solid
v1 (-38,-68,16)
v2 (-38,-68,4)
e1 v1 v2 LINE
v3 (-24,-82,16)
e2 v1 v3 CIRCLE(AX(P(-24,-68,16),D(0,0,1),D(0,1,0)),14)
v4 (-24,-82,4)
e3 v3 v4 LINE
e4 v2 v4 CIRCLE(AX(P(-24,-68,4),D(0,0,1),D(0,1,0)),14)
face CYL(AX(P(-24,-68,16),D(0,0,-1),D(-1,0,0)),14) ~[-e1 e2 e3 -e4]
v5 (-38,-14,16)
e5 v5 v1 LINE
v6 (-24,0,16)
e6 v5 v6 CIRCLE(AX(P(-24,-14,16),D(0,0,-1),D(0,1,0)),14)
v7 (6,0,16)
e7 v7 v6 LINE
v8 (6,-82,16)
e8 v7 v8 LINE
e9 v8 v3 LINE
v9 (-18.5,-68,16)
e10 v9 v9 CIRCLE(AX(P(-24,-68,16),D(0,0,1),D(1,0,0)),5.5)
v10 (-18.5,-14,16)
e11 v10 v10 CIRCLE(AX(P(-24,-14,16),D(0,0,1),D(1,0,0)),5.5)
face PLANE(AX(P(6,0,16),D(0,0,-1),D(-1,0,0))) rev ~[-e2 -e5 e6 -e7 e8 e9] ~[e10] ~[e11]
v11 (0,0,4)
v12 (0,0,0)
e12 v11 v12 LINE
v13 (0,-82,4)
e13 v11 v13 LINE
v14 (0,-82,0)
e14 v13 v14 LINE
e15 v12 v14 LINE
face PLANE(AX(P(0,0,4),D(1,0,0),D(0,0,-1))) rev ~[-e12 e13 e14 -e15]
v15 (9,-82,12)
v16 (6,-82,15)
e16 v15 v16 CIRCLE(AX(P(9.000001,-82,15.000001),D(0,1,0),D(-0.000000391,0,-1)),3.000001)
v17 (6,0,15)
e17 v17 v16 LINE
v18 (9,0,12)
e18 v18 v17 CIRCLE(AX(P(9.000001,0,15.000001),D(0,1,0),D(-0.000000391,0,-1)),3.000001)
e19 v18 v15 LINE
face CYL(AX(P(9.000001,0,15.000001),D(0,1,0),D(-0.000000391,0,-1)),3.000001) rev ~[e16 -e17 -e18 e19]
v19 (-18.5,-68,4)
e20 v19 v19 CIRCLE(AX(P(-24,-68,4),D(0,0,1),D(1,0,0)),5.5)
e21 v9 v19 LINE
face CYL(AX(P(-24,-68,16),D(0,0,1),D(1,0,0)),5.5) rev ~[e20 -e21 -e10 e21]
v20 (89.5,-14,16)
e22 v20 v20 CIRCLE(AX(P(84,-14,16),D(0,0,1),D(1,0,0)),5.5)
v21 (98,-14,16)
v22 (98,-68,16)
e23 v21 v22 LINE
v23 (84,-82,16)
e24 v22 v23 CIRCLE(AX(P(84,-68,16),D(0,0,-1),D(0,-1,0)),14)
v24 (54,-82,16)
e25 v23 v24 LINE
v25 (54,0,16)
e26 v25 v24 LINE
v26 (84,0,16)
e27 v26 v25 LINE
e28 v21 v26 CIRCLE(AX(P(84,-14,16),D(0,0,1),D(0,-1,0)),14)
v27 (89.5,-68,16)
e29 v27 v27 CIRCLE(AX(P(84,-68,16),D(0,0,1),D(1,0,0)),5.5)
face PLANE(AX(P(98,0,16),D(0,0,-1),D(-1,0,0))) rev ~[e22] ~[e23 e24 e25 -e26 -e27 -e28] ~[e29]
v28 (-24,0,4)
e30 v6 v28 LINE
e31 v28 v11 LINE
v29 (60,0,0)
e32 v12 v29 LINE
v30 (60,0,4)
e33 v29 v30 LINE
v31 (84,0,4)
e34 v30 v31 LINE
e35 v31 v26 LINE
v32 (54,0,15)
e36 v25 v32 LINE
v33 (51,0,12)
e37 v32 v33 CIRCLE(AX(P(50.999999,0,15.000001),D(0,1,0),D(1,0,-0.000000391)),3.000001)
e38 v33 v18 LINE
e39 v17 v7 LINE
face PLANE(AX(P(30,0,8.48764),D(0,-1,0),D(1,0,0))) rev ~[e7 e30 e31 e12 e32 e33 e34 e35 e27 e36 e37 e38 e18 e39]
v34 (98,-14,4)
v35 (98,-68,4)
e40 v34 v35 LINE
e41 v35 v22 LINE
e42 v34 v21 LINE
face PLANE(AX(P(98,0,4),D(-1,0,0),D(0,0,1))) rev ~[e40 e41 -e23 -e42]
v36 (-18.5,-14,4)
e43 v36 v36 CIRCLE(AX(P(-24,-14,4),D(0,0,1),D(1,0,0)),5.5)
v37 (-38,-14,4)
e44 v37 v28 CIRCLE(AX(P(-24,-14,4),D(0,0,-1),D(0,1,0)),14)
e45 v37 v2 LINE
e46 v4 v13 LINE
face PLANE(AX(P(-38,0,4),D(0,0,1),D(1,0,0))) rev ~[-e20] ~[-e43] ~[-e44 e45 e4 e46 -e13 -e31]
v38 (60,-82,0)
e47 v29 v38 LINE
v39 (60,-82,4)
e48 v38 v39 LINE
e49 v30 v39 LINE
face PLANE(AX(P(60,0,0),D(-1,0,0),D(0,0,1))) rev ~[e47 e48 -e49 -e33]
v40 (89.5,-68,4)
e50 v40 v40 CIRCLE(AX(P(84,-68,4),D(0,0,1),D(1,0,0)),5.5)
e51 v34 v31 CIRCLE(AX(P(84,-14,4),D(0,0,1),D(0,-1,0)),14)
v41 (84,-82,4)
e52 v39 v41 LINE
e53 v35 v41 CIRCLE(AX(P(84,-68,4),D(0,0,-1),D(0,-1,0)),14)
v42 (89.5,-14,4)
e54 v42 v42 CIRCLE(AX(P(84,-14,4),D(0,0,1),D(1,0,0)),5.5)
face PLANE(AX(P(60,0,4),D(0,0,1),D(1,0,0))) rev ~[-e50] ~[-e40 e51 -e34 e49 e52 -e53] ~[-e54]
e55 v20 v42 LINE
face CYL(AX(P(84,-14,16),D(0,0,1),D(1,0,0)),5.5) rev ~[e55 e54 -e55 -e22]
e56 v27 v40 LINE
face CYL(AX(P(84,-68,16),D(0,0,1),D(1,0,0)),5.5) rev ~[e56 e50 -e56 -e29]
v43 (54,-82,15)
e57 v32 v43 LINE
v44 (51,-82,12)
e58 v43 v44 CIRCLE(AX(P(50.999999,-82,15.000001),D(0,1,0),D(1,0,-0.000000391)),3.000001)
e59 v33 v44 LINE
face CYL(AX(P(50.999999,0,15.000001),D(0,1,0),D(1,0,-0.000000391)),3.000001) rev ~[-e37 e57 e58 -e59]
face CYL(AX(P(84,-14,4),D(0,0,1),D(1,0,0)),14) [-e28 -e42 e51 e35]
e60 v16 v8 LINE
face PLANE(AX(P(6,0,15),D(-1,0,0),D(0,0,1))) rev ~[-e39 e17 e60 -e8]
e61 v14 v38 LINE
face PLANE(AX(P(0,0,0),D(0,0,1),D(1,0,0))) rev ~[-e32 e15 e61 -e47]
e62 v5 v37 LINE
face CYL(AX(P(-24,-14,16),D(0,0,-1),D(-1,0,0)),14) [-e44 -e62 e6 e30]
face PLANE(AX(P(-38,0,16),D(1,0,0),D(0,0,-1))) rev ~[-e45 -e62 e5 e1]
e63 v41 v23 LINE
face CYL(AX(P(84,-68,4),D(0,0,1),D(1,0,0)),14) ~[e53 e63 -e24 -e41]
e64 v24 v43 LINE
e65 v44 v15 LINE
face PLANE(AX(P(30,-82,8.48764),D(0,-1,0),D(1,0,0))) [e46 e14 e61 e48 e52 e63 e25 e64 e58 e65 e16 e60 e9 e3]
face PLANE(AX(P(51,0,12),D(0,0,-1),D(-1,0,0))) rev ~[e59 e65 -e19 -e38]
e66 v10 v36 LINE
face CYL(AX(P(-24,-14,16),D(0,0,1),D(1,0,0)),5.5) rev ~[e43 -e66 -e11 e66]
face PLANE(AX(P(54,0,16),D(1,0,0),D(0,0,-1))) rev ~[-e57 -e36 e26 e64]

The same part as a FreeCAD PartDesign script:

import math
import FreeCAD as App
import Part
import Sketcher


def edges_at(feature, points):
    """Names of the edges that pass closest to the given points."""
    edges = feature.Shape.Edges
    near = lambda p: min(range(len(edges)), key=lambda i: edges[i].distToShape(Part.Vertex(*p))[0])
    return sorted({f"Edge{near(p) + 1}" for p in points})

doc = App.newDocument("Part")
body = doc.addObject("PartDesign::Body", "Body")

# Sketch on XZ plane
sketch1 = body.newObject("Sketcher::SketchObject", "Sketch")
sketch1.AttachmentSupport = (doc.getObject("XZ_Plane"), [""])
sketch1.MapMode = "FlatFace"
sketch1.addGeometry([
    Part.LineSegment(App.Vector(0, 4, 0), App.Vector(0, 0, 0)),  # 0
    Part.LineSegment(App.Vector(0, 0, 0), App.Vector(60, 0, 0)),  # 1
    Part.LineSegment(App.Vector(60, 0, 0), App.Vector(60, 4, 0)),  # 2
    Part.LineSegment(App.Vector(60, 4, 0), App.Vector(98, 4, 0)),  # 3
    Part.LineSegment(App.Vector(98, 4, 0), App.Vector(98, 16, 0)),  # 4
    Part.LineSegment(App.Vector(98, 16, 0), App.Vector(54, 16, 0)),  # 5
    Part.LineSegment(App.Vector(54, 16, 0), App.Vector(54, 15, 0)),  # 6
    Part.ArcOfCircle(Part.Circle(App.Vector(51, 15, 0), App.Vector(0, 0, 1), 3), math.radians(-90), math.radians(0)),  # 7
    Part.LineSegment(App.Vector(51, 12, 0), App.Vector(9, 12, 0)),  # 8
    Part.ArcOfCircle(Part.Circle(App.Vector(9, 15, 0), App.Vector(0, 0, 1), 3), math.radians(-180), math.radians(-90)),  # 9
    Part.LineSegment(App.Vector(6, 15, 0), App.Vector(6, 16, 0)),  # 10
    Part.LineSegment(App.Vector(6, 16, 0), App.Vector(-38, 16, 0)),  # 11
    Part.LineSegment(App.Vector(-38, 16, 0), App.Vector(-38, 4, 0)),  # 12
    Part.LineSegment(App.Vector(-38, 4, 0), App.Vector(0, 4, 0)),  # 13
], False)
sketch1.addConstraint([
    Sketcher.Constraint("Coincident", 0, 2, 1, 1),
    Sketcher.Constraint("Coincident", 1, 2, 2, 1),
    Sketcher.Constraint("Coincident", 2, 2, 3, 1),
    Sketcher.Constraint("Coincident", 3, 2, 4, 1),
    Sketcher.Constraint("Coincident", 4, 2, 5, 1),
    Sketcher.Constraint("Coincident", 5, 2, 6, 1),
    Sketcher.Constraint("Tangent", 6, 2, 7, 2),
    Sketcher.Constraint("Tangent", 7, 1, 8, 1),
    Sketcher.Constraint("Tangent", 8, 2, 9, 2),
    Sketcher.Constraint("Tangent", 9, 1, 10, 1),
    Sketcher.Constraint("Coincident", 10, 2, 11, 1),
    Sketcher.Constraint("Coincident", 11, 2, 12, 1),
    Sketcher.Constraint("Coincident", 12, 2, 13, 1),
    Sketcher.Constraint("Coincident", 13, 2, 0, 1),
    Sketcher.Constraint("Vertical", 0),
    Sketcher.Constraint("Horizontal", 1),
    Sketcher.Constraint("Vertical", 2),
    Sketcher.Constraint("Horizontal", 3),
    Sketcher.Constraint("Vertical", 4),
    Sketcher.Constraint("Horizontal", 5),
    Sketcher.Constraint("Vertical", 6),
    Sketcher.Constraint("Horizontal", 8),
    Sketcher.Constraint("Vertical", 10),
    Sketcher.Constraint("Horizontal", 11),
    Sketcher.Constraint("Vertical", 12),
    Sketcher.Constraint("Horizontal", 13),
    Sketcher.Constraint("Coincident", 0, 2, -1, 1),
    Sketcher.Constraint("Equal", 7, 9),
    Sketcher.Constraint("Horizontal", 5, 2, 10, 2),
    Sketcher.Constraint("Horizontal", 3, 2, 12, 2),
    Sketcher.Constraint("Equal", 5, 11),
    Sketcher.Constraint("Equal", 3, 13),
    Sketcher.Constraint("Radius", 7, 3.000001),
    Sketcher.Constraint("DistanceX", 1, 1, 1, 2, 60.0),
    Sketcher.Constraint("DistanceX", 3, 1, 3, 2, 38.0),
    Sketcher.Constraint("DistanceX", 5, 2, 5, 1, 44.0),
    Sketcher.Constraint("DistanceY", 0, 2, 0, 1, 4.0),
    Sketcher.Constraint("DistanceY", 4, 1, 4, 2, 12.0),
    Sketcher.Constraint("DistanceY", 6, 2, 6, 1, 1.0),
])
pad1 = body.newObject("PartDesign::Pad", "Pad")
pad1.Profile = sketch1
pad1.Length = 82
doc.recompute()

fillet = body.newObject("PartDesign::Fillet", "Fillet")
fillet.Base = (pad1, edges_at(pad1, [
    (98, -82, 10),
    (98, 0, 10),
    (-38, 0, 10),
    (-38, -82, 10),
]))
fillet.Radius = 14

# Sketch on XY plane
sketch2 = body.newObject("Sketcher::SketchObject", "Sketch001")
sketch2.AttachmentSupport = (doc.getObject("XY_Plane"), [""])
sketch2.MapMode = "FlatFace"
sketch2.AttachmentOffset = App.Placement(App.Vector(0, 0, 16), App.Rotation())
sketch2.addGeometry([
    Part.Circle(App.Vector(-24, -14, 0), App.Vector(0, 0, 1), 6),
    Part.Circle(App.Vector(-24, -68, 0), App.Vector(0, 0, 1), 6),
    Part.Circle(App.Vector(84, -68, 0), App.Vector(0, 0, 1), 6),
    Part.Circle(App.Vector(84, -14, 0), App.Vector(0, 0, 1), 6),
], False)
sketch2.addConstraint([
    Sketcher.Constraint("Equal", 0, 1),
    Sketcher.Constraint("Equal", 1, 2),
    Sketcher.Constraint("Equal", 2, 3),
    Sketcher.Constraint("Horizontal", 1, 3, 2, 3),
    Sketcher.Constraint("Horizontal", 0, 3, 3, 3),
    Sketcher.Constraint("Vertical", 0, 3, 1, 3),
    Sketcher.Constraint("Vertical", 2, 3, 3, 3),
    Sketcher.Constraint("Diameter", 0, 11.0),
    Sketcher.Constraint("DistanceX", 0, 3, -1, 1, 24.0),
    Sketcher.Constraint("DistanceY", 0, 3, -1, 1, 14.0),
    Sketcher.Constraint("DistanceY", 1, 3, -1, 1, 68.0),
    Sketcher.Constraint("DistanceX", -1, 1, 2, 3, 84.0),
])
pocket1 = body.newObject("PartDesign::Pocket", "Pocket")
pocket1.Profile = sketch2
pocket1.Length = 25

doc.recompute()
